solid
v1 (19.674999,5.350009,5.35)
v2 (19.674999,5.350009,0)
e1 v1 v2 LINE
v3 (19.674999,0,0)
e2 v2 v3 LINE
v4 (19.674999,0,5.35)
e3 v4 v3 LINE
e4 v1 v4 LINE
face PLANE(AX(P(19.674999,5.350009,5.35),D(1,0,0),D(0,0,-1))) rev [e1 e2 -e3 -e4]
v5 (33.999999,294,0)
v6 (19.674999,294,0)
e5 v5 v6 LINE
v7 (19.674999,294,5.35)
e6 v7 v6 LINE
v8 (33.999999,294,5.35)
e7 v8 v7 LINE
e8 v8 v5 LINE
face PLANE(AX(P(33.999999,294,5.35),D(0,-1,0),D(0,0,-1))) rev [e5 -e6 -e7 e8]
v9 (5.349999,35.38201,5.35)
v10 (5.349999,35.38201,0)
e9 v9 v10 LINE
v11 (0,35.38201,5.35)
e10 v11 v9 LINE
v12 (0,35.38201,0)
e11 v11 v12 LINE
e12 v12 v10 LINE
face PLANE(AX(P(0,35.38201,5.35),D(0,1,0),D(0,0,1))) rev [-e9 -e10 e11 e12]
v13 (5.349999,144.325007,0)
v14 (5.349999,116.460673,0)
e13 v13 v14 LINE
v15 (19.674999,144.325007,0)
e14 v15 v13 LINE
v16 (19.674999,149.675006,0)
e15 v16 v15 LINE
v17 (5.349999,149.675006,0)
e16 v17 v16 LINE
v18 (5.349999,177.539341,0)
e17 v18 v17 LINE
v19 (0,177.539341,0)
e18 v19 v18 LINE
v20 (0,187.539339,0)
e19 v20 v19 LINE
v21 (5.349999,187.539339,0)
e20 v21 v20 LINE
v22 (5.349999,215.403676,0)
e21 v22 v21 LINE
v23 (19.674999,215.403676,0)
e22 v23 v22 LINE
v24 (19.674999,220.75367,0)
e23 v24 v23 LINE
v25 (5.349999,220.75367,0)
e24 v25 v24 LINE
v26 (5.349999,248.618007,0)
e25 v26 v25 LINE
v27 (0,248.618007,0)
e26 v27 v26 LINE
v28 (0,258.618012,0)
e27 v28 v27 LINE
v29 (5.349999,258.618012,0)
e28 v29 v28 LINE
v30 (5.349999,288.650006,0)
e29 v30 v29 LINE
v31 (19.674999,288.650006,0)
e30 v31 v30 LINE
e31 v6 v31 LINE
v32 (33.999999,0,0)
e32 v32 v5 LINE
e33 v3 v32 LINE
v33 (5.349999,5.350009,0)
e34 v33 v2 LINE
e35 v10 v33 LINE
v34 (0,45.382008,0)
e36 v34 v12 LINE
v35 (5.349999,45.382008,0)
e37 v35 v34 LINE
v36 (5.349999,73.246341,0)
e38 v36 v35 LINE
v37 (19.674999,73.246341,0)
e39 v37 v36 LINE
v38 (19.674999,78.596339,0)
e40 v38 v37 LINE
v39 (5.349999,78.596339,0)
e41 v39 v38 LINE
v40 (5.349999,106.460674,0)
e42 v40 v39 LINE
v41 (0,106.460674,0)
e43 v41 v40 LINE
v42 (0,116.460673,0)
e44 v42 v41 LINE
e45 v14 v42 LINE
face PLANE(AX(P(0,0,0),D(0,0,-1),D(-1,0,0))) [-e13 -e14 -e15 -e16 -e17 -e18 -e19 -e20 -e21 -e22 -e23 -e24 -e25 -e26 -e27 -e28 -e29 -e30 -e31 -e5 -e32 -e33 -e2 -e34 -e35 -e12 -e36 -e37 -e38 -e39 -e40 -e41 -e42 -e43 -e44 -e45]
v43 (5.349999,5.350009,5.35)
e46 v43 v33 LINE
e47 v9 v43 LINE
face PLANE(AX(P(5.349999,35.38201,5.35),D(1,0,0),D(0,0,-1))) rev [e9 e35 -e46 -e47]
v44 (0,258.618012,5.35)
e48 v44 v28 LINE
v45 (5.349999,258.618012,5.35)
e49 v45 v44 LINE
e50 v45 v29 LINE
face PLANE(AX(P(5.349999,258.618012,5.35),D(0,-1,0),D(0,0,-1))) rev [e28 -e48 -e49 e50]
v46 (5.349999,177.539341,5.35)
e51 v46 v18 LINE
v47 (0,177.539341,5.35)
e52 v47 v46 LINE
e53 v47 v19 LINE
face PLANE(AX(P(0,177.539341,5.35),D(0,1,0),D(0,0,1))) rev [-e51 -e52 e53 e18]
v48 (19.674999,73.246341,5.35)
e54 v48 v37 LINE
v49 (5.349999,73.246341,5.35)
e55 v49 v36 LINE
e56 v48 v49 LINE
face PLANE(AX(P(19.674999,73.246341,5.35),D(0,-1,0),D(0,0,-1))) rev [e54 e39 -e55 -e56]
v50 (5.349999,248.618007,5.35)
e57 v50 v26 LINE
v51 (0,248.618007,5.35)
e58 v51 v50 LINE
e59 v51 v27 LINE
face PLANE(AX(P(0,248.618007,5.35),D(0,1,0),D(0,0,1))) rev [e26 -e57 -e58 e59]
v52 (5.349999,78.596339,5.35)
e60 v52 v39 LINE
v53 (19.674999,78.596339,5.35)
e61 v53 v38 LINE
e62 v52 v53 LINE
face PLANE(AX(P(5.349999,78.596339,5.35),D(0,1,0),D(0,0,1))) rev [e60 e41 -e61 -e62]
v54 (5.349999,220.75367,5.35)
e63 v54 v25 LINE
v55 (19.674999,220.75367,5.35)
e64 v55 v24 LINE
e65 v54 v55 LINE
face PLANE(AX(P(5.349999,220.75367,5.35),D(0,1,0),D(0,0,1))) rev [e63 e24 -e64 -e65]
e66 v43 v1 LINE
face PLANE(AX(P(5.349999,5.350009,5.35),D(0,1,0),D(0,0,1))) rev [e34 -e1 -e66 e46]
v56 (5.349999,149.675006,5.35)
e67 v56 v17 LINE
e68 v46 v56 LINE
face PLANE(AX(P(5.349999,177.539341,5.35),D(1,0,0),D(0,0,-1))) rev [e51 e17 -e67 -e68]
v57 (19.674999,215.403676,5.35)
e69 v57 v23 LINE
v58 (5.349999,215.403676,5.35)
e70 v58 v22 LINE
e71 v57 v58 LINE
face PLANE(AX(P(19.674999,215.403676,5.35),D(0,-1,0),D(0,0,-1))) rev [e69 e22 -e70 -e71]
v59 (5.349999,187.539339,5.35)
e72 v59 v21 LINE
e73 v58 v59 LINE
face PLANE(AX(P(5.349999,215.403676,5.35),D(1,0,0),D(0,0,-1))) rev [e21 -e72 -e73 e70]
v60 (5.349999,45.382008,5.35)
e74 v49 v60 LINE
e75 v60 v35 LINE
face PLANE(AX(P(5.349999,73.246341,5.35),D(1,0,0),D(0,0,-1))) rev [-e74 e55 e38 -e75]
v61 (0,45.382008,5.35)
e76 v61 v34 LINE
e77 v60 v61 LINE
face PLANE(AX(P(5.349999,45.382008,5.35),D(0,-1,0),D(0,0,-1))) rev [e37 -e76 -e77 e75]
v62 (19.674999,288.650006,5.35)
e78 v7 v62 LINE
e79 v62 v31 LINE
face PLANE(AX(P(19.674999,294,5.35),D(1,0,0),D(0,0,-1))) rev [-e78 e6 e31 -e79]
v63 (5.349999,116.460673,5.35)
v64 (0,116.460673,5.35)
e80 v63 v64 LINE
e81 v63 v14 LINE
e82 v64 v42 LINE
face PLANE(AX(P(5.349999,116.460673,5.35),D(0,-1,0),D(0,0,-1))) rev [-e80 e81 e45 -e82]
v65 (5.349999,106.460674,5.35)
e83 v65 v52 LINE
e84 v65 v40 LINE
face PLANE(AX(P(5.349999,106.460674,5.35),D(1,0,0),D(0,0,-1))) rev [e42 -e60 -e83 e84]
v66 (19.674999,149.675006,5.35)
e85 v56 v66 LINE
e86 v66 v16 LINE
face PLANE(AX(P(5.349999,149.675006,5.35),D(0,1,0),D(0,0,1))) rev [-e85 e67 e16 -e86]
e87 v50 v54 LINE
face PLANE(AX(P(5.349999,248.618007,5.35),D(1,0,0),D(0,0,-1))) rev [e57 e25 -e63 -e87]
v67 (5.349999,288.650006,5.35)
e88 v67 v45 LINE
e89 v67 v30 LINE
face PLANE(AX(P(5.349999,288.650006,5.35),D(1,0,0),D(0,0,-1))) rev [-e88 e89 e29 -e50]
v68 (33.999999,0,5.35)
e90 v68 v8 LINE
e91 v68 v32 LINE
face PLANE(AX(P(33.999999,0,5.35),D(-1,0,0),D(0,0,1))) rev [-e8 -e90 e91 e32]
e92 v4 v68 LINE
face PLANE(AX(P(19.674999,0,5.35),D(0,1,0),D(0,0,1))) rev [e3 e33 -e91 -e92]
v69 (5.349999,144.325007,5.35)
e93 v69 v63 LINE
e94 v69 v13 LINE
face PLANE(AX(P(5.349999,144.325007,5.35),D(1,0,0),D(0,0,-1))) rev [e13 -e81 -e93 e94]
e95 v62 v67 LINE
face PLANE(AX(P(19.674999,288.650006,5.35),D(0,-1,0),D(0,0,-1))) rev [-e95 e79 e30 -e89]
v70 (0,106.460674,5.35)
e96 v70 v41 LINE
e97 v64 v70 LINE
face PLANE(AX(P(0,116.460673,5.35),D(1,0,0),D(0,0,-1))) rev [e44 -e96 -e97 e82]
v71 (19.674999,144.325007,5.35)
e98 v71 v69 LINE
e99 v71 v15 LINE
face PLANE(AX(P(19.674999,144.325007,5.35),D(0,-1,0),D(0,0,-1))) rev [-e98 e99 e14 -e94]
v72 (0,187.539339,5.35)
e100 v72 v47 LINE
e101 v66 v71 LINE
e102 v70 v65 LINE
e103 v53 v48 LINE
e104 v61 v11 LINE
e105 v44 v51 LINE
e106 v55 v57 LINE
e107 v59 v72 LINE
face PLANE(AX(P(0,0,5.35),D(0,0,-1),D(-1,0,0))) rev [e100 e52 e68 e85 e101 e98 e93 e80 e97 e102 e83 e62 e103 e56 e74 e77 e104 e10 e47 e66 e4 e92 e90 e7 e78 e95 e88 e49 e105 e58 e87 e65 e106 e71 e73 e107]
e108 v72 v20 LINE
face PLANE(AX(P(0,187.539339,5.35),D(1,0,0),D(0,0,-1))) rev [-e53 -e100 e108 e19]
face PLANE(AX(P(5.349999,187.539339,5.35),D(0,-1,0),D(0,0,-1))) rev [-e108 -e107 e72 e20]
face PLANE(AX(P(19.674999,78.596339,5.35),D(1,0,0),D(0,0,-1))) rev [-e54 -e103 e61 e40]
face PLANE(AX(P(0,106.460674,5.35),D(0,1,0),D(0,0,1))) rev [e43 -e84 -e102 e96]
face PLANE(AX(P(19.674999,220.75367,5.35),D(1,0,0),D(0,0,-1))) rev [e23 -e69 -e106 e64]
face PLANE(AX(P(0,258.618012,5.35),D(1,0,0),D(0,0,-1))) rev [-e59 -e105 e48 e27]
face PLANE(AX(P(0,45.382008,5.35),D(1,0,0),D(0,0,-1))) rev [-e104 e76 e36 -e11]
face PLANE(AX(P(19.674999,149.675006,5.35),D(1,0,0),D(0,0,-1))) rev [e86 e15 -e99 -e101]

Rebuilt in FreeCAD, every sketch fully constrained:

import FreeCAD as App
import Part
import Sketcher
Q = App.Units.Quantity


def add_polygon(sketch, points):
    """Adds a closed chain of lines whose ends are joined by coincident constraints."""
    first, n = sketch.GeometryCount, len(points)
    for a, b in zip(points, points[1:] + points[:1]):
        sketch.addGeometry(Part.LineSegment(App.Vector(*a, 0), App.Vector(*b, 0)), False)
    for i in range(n):
        sketch.addConstraint(Sketcher.Constraint("Coincident", first + i, 2, first + (i + 1) % n, 1))

doc = App.newDocument("Part")
body = doc.addObject("PartDesign::Body", "Body")

sketch1 = body.newObject("Sketcher::SketchObject", "Sketch")
sketch1.AttachmentSupport = (doc.getObject("XY_Plane"), [""])
sketch1.MapMode = "FlatFace"
add_polygon(sketch1, [(20, 5), (20, 0), (34, 0), (34, 294), (20, 294), (20, 289), (5, 289), (5, 259), (0, 259), (0, 249), (5, 249), (5, 221), (20, 221), (20, 215), (5, 215), (5, 188), (0, 188), (0, 178), (5, 178), (5, 150), (20, 150), (20, 144), (5, 144), (5, 116), (0, 116), (0, 106), (5, 106), (5, 79), (20, 79), (20, 73), (5, 73), (5, 45), (0, 45), (0, 35), (5, 35), (5, 5)])
sketch1.addConstraint(Sketcher.Constraint("Vertical", 0))
sketch1.addConstraint(Sketcher.Constraint("Horizontal", 1))
sketch1.addConstraint(Sketcher.Constraint("Vertical", 2))
sketch1.addConstraint(Sketcher.Constraint("Horizontal", 3))
sketch1.addConstraint(Sketcher.Constraint("Vertical", 4))
sketch1.addConstraint(Sketcher.Constraint("Horizontal", 5))
sketch1.addConstraint(Sketcher.Constraint("Vertical", 6))
sketch1.addConstraint(Sketcher.Constraint("Horizontal", 7))
sketch1.addConstraint(Sketcher.Constraint("Vertical", 8))
sketch1.addConstraint(Sketcher.Constraint("Horizontal", 9))
sketch1.addConstraint(Sketcher.Constraint("Vertical", 10))
sketch1.addConstraint(Sketcher.Constraint("Horizontal", 11))
sketch1.addConstraint(Sketcher.Constraint("Vertical", 12))
sketch1.addConstraint(Sketcher.Constraint("Horizontal", 13))
sketch1.addConstraint(Sketcher.Constraint("Vertical", 14))
sketch1.addConstraint(Sketcher.Constraint("Horizontal", 15))
sketch1.addConstraint(Sketcher.Constraint("Vertical", 16))
sketch1.addConstraint(Sketcher.Constraint("Horizontal", 17))
sketch1.addConstraint(Sketcher.Constraint("Vertical", 18))
sketch1.addConstraint(Sketcher.Constraint("Horizontal", 19))
sketch1.addConstraint(Sketcher.Constraint("Vertical", 20))
sketch1.addConstraint(Sketcher.Constraint("Horizontal", 21))
sketch1.addConstraint(Sketcher.Constraint("Vertical", 22))
sketch1.addConstraint(Sketcher.Constraint("Horizontal", 23))
sketch1.addConstraint(Sketcher.Constraint("Vertical", 24))
sketch1.addConstraint(Sketcher.Constraint("Horizontal", 25))
sketch1.addConstraint(Sketcher.Constraint("Vertical", 26))
sketch1.addConstraint(Sketcher.Constraint("Horizontal", 27))
sketch1.addConstraint(Sketcher.Constraint("Vertical", 28))
sketch1.addConstraint(Sketcher.Constraint("Horizontal", 29))
sketch1.addConstraint(Sketcher.Constraint("Vertical", 30))
sketch1.addConstraint(Sketcher.Constraint("Horizontal", 31))
sketch1.addConstraint(Sketcher.Constraint("Vertical", 32))
sketch1.addConstraint(Sketcher.Constraint("Horizontal", 33))
sketch1.addConstraint(Sketcher.Constraint("Vertical", 34))
sketch1.addConstraint(Sketcher.Constraint("Horizontal", 35))
sketch1.addConstraint(Sketcher.Constraint("PointOnObject", 0, 2, -1))
sketch1.addConstraint(Sketcher.Constraint("PointOnObject", 7, 2, -2))
sketch1.addConstraint(Sketcher.Constraint("PointOnObject", 15, 2, -2))
sketch1.addConstraint(Sketcher.Constraint("PointOnObject", 23, 2, -2))
sketch1.addConstraint(Sketcher.Constraint("PointOnObject", 31, 2, -2))
sketch1.addConstraint(Sketcher.Constraint("Vertical", 0, 2, 3, 2))
sketch1.addConstraint(Sketcher.Constraint("Vertical", 6, 2, 9, 2))
sketch1.addConstraint(Sketcher.Constraint("Vertical", 4, 2, 11, 2))
sketch1.addConstraint(Sketcher.Constraint("Vertical", 10, 2, 13, 2))
sketch1.addConstraint(Sketcher.Constraint("Vertical", 14, 2, 17, 2))
sketch1.addConstraint(Sketcher.Constraint("Vertical", 12, 2, 19, 2))
sketch1.addConstraint(Sketcher.Constraint("Vertical", 18, 2, 21, 2))
sketch1.addConstraint(Sketcher.Constraint("Vertical", 22, 2, 25, 2))
sketch1.addConstraint(Sketcher.Constraint("Vertical", 20, 2, 27, 2))
sketch1.addConstraint(Sketcher.Constraint("Vertical", 26, 2, 29, 2))
sketch1.addConstraint(Sketcher.Constraint("Vertical", 30, 2, 33, 2))
sketch1.addConstraint(Sketcher.Constraint("Equal", 3, 5))
sketch1.addConstraint(Sketcher.Constraint("Equal", 4, 12))
sketch1.addConstraint(Sketcher.Constraint("Equal", 10, 14))
sketch1.addConstraint(Sketcher.Constraint("Equal", 14, 18))
sketch1.addConstraint(Sketcher.Constraint("Equal", 33, 20))
sketch1.addConstraint(Sketcher.Constraint("Equal", 18, 22))
sketch1.addConstraint(Sketcher.Constraint("Equal", 16, 24))
sketch1.addConstraint(Sketcher.Constraint("Equal", 22, 26))
sketch1.addConstraint(Sketcher.Constraint("Equal", 20, 28))
sketch1.addConstraint(Sketcher.Constraint("Equal", 26, 30))
sketch1.addConstraint(Sketcher.Constraint("Equal", 24, 32))
sketch1.addConstraint(Sketcher.Constraint("DistanceY", 2, 1, 2, 2, Q("294 mm")))
sketch1.addConstraint(Sketcher.Constraint("DistanceY", 24, 2, 24, 1, Q("9.999999 mm")))
sketch1.addConstraint(Sketcher.Constraint("DistanceX", -1, 1, 1, 2, Q("33.999999 mm")))
sketch1.addConstraint(Sketcher.Constraint("DistanceX", 7, 2, 7, 1, Q("5.349999 mm")))
sketch1.addConstraint(Sketcher.Constraint("DistanceY", 34, 2, 34, 1, Q("30.032001 mm")))
sketch1.addConstraint(Sketcher.Constraint("DistanceY", 8, 2, 5, 2, Q("40.031999 mm")))
sketch1.addConstraint(Sketcher.Constraint("DistanceY", 0, 2, 0, 1, Q("5.350009 mm")))
sketch1.addConstraint(Sketcher.Constraint("DistanceY", 4, 2, 4, 1, Q("5.349994 mm")))
sketch1.addConstraint(Sketcher.Constraint("DistanceY", 6, 2, 6, 1, Q("30.031994 mm")))
pad1 = body.newObject("PartDesign::Pad", "Pad")
pad1.Profile = sketch1
pad1.Length = 5.35

doc.recompute()
